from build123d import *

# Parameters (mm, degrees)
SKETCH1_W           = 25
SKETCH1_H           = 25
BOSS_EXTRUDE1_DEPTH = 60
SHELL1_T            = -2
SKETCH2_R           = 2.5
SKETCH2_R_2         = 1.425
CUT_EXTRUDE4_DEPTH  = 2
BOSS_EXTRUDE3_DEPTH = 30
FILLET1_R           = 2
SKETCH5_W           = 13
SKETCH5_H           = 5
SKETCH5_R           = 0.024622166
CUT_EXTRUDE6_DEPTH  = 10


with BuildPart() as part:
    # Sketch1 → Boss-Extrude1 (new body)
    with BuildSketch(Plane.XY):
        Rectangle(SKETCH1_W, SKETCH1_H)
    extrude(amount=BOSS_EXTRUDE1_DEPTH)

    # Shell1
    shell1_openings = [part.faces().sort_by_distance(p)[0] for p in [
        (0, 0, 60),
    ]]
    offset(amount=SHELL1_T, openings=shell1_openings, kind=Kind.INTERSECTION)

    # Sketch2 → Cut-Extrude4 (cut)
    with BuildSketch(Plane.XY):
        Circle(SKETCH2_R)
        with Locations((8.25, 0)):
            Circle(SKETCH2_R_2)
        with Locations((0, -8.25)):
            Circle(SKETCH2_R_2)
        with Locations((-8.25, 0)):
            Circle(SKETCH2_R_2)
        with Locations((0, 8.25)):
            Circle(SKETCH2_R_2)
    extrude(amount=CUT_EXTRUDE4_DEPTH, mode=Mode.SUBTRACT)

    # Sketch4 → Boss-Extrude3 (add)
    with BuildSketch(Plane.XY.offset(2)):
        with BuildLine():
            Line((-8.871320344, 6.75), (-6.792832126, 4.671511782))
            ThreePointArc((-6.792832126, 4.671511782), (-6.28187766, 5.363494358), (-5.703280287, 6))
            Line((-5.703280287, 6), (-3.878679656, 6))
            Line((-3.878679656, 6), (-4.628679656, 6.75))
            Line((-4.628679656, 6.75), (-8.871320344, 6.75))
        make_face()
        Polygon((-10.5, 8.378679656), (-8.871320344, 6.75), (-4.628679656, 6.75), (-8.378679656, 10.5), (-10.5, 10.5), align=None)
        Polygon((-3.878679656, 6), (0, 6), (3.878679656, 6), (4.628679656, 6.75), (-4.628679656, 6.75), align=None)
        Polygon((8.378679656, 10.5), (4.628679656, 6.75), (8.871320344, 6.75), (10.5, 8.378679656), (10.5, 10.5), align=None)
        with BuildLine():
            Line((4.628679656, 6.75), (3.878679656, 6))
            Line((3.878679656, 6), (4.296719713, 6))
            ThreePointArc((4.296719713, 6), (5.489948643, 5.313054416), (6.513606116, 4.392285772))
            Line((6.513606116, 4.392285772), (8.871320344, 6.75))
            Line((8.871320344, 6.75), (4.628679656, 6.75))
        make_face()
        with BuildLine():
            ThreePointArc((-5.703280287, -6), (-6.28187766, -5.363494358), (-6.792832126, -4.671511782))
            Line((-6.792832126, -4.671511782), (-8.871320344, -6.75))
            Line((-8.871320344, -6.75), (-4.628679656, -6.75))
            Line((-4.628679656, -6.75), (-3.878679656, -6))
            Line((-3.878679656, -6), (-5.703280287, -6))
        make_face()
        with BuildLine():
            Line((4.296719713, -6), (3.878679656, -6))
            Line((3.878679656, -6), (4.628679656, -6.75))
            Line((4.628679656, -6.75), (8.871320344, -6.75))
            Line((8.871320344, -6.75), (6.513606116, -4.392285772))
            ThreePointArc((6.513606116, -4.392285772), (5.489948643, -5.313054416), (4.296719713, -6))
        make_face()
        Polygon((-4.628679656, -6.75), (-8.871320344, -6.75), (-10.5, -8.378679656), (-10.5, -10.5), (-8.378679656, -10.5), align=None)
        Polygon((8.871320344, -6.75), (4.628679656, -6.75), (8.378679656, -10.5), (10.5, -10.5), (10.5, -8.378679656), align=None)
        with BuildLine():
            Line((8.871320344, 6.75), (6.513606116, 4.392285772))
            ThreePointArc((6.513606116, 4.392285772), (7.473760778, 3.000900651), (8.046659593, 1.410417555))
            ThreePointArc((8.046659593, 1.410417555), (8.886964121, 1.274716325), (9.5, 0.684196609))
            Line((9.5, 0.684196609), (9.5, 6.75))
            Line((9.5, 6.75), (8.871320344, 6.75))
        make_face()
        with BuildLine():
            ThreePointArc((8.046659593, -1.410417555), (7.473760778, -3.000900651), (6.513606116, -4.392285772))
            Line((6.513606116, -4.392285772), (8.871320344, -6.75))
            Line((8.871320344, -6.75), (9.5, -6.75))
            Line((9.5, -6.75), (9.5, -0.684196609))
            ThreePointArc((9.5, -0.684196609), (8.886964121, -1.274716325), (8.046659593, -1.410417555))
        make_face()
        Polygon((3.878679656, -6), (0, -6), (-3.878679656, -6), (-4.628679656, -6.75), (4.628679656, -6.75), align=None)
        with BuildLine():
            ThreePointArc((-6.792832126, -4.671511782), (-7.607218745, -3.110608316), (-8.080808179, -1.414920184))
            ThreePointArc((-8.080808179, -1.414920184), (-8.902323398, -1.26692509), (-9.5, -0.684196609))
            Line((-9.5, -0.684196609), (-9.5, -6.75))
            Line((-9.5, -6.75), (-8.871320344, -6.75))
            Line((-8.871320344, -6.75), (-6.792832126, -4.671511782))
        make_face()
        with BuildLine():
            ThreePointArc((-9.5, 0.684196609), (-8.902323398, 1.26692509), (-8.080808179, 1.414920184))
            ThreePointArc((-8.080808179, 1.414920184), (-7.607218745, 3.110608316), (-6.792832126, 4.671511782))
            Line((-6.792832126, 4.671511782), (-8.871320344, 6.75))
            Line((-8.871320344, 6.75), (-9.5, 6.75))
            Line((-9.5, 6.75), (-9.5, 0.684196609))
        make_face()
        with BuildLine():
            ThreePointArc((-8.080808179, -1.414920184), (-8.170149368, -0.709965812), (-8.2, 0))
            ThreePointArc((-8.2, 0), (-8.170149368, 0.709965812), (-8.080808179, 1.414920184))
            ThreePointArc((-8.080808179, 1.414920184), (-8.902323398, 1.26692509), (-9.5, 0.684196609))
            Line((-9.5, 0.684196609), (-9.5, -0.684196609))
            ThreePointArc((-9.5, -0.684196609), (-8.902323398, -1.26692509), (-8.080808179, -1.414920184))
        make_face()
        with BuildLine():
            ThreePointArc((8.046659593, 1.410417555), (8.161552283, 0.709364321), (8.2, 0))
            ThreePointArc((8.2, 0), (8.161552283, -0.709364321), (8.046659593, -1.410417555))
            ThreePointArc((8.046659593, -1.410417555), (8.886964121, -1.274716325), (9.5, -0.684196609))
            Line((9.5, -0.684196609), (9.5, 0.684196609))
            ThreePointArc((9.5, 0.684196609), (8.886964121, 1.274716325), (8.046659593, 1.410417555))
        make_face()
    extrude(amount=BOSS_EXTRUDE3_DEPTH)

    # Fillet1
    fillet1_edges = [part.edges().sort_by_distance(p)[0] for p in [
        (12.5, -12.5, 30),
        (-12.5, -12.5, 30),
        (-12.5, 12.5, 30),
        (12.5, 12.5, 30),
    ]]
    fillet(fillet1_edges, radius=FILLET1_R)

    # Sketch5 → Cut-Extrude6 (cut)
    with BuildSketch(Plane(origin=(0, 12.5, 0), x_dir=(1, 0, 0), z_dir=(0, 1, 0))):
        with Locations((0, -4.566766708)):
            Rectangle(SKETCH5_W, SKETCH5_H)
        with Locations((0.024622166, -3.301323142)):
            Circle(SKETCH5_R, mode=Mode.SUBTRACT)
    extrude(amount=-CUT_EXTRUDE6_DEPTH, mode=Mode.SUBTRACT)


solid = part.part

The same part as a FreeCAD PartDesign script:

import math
import FreeCAD as App
import Part
import Sketcher

V = App.Vector


def edges_at(feature, points):
    """Names of the edges that pass closest to the given points."""
    edges = feature.Shape.Edges
    near = lambda p: min(range(len(edges)), key=lambda i: edges[i].distToShape(Part.Vertex(*p))[0])
    return sorted({f"Edge{near(p) + 1}" for p in points})


def faces_at(feature, points):
    """Names of the faces that lie closest to the given points."""
    faces = feature.Shape.Faces
    near = lambda p: min(range(len(faces)), key=lambda i: faces[i].distToShape(Part.Vertex(*p))[0])
    return sorted({f"Face{near(p) + 1}" for p in points})


def add_polygon(sketch, points):
    """Adds a closed chain of lines whose ends are joined by coincident constraints."""
    first, n = sketch.GeometryCount, len(points)
    for a, b in zip(points, points[1:] + points[:1]):
        sketch.addGeometry(Part.LineSegment(App.Vector(*a, 0), App.Vector(*b, 0)), False)
    for i in range(n):
        sketch.addConstraint(Sketcher.Constraint("Coincident", first + i, 2, first + (i + 1) % n, 1))

doc = App.newDocument("Part")
params = doc.addObject("Spreadsheet::Sheet", "Params")
for row, (alias, value) in enumerate([
    ("sketch1_width", "25 mm"),
    ("pad1_length", "60 mm"),
    ("thickness_wall", "2 mm"),
    ("sketch2_diameter", "5 mm"),
    ("sketch2_diameter2", "2.85 mm"),
    ("pocket1_length", "2 mm"),
    ("sketch3_width", "10 mm"),
    ("sketch3_height", "13.5 mm"),
    ("pad2_length", "30 mm"),
    ("fillet_radius", "2 mm"),
    ("sketch4_width", "13 mm"),
    ("sketch4_height", "5 mm"),
    ("pocket2_length", "10 mm"),
], start=1):
    params.set(f"A{row}", alias)
    params.set(f"B{row}", "=" + value)
    params.setAlias(f"B{row}", alias)

body = doc.addObject("PartDesign::Body", "Body")
body.AllowCompound = True

# Sketch on XY plane
sketch1 = body.newObject("Sketcher::SketchObject", "Sketch")
sketch1.AttachmentSupport = (doc.getObject("XY_Plane"), [""])
sketch1.MapMode = "FlatFace"
add_polygon(sketch1, [(-12, 12), (-12, -12), (12, -12), (12, 12)])  # lines 0-3
sketch1.addConstraint([
    Sketcher.Constraint("Vertical", 0),
    Sketcher.Constraint("Horizontal", 1),
    Sketcher.Constraint("Vertical", 2),
    Sketcher.Constraint("Horizontal", 3),
    Sketcher.Constraint("Symmetric", 0, 2, 2, 2, -1, 1),
    Sketcher.Constraint("Equal", 3, 0),
    Sketcher.Constraint("DistanceX", 1, 1, 1, 2, 25.0),
])
sketch1.setExpression("Constraints[10]", "Params.sketch1_width")
pad1 = body.newObject("PartDesign::Pad", "Pad")
pad1.Profile = sketch1
pad1.setExpression("Length", "Params.pad1_length")
doc.recompute()

thickness = body.newObject("PartDesign::Thickness", "Thickness")
thickness.Base = (pad1, faces_at(pad1, [(0, 0, 60)]))
thickness.setExpression("Value", "Params.thickness_wall")
thickness.Reversed = True
thickness.Join = "Intersection"

# Sketch on XY plane
sketch2 = body.newObject("Sketcher::SketchObject", "Sketch001")
sketch2.AttachmentSupport = (doc.getObject("XY_Plane"), [""])
sketch2.MapMode = "FlatFace"
sketch2.addGeometry([
    Part.Circle(V(0, 0, 0), V(0, 0, 1), 2.5),  # 0
    Part.Circle(V(8.2, 0, 0), V(0, 0, 1), 1.4),  # 1
    Part.Circle(V(0, -8.2, 0), V(0, 0, 1), 1.4),  # 2
    Part.Circle(V(-8.2, 0, 0), V(0, 0, 1), 1.4),  # 3
    Part.Circle(V(0, 8.2, 0), V(0, 0, 1), 1.4),  # 4
], False)
sketch2.addConstraint([
    Sketcher.Constraint("Coincident", 0, 3, -1, 1),
    Sketcher.Constraint("Equal", 1, 2),
    Sketcher.Constraint("Equal", 2, 3),
    Sketcher.Constraint("Equal", 3, 4),
    Sketcher.Constraint("Symmetric", 1, 3, 3, 3, -1, 1),
    Sketcher.Constraint("Symmetric", 2, 3, 4, 3, -1, 1),
    Sketcher.Constraint("PointOnObject", 1, 3, -1),
    Sketcher.Constraint("PointOnObject", 2, 3, -2),
    Sketcher.Constraint("Diameter", 0, 5.0),
    Sketcher.Constraint("Diameter", 1, 2.85),
    Sketcher.Constraint("DistanceX", 3, 3, 1, 3, 16.5),
    Sketcher.Constraint("DistanceY", 2, 3, 4, 3, 16.5),
])
sketch2.setExpression("Constraints[8]", "Params.sketch2_diameter")
sketch2.setExpression("Constraints[9]", "Params.sketch2_diameter2")
pocket1 = body.newObject("PartDesign::Pocket", "Pocket")
pocket1.Profile = sketch2
pocket1.setExpression("Length", "Params.pocket1_length")
pocket1.Reversed = True

# Sketch on XY plane
sketch3 = body.newObject("Sketcher::SketchObject", "Sketch002")
sketch3.AttachmentSupport = (doc.getObject("XY_Plane"), [""])
sketch3.MapMode = "FlatFace"
sketch3.AttachmentOffset = App.Placement(V(0, 0, 2), App.Rotation())
add_polygon(sketch3, [(9.5, 6.8), (8.9, 6.8), (10.5, 8.4), (10.5, 10.5), (8.4, 10.5), (4.6, 6.8), (-4.6, 6.8), (-8.4, 10.5), (-10.5, 10.5), (-10.5, 8.4), (-8.9, 6.8), (-9.5, 6.8), (-9.5, -6.8), (-8.9, -6.8), (-10.5, -8.4), (-10.5, -10.5), (-8.4, -10.5), (-4.6, -6.8), (4.6, -6.8), (8.4, -10.5), (10.5, -10.5), (10.5, -8.4), (8.9, -6.8), (9.5, -6.8)])  # lines 0-23
sketch3.addGeometry(Part.ArcOfCircle(Part.Circle(V(0.3, 0, 0), V(0, 0, 1), 8.5), math.radians(134.81), math.radians(146.47)), False)  # 24
sketch3.addGeometry(Part.LineSegment(V(-5.7, 6, 0), V(4.3, 6, 0)), False)  # 25
sketch3.addGeometry(Part.ArcOfCircle(Part.Circle(V(1.6, 0, 0), V(0, 0, 1), 6.6), math.radians(42), math.radians(66)), False)  # 26
sketch3.addGeometry(Part.ArcOfCircle(Part.Circle(V(1.6, 0, 0), V(0, 0, 1), 6.6), math.radians(12), math.radians(42)), False)  # 27
sketch3.addGeometry(Part.ArcOfCircle(Part.Circle(V(1.6, 0, 0), V(0, 0, 1), 6.6), math.radians(0), math.radians(12.41)), False)  # 28
sketch3.addGeometry(Part.ArcOfCircle(Part.Circle(V(1.6, 0, 0), V(0, 0, 1), 6.6), math.radians(-12.41), math.radians(0)), False)  # 29
sketch3.addGeometry(Part.ArcOfCircle(Part.Circle(V(1.6, 0, 0), V(0, 0, 1), 6.6), math.radians(-42), math.radians(-12)), False)  # 30
sketch3.addGeometry(Part.ArcOfCircle(Part.Circle(V(1.6, 0, 0), V(0, 0, 1), 6.6), math.radians(-66), math.radians(-42)), False)  # 31
sketch3.addGeometry(Part.LineSegment(V(4.3, -6, 0), V(-5.7, -6, 0)), False)  # 32
sketch3.addGeometry(Part.ArcOfCircle(Part.Circle(V(0.3, 0, 0), V(0, 0, 1), 8.5), math.radians(-146.47), math.radians(-134.81)), False)  # 33
sketch3.addGeometry(Part.ArcOfCircle(Part.Circle(V(0.3, 0, 0), V(0, 0, 1), 8.5), math.radians(-170), math.radians(-146)), False)  # 34
sketch3.addGeometry(Part.ArcOfCircle(Part.Circle(V(0.3, 0, 0), V(0, 0, 1), 8.5), math.radians(-180), math.radians(-170.37)), False)  # 35
sketch3.addGeometry(Part.ArcOfCircle(Part.Circle(V(0.3, 0, 0), V(0, 0, 1), 8.5), math.radians(170.37), math.radians(180)), False)  # 36
sketch3.addGeometry(Part.ArcOfCircle(Part.Circle(V(0.3, 0, 0), V(0, 0, 1), 8.5), math.radians(146), math.radians(170)), False)  # 37
sketch3.addConstraint([
    Sketcher.Constraint("Coincident", 24, 1, 25, 1),
    Sketcher.Constraint("Coincident", 25, 2, 26, 2),
    Sketcher.Constraint("Tangent", 26, 1, 27, 2),
    Sketcher.Constraint("Tangent", 27, 1, 28, 2),
    Sketcher.Constraint("Tangent", 28, 1, 29, 2),
    Sketcher.Constraint("Tangent", 29, 1, 30, 2),
    Sketcher.Constraint("Tangent", 30, 1, 31, 2),
    Sketcher.Constraint("Coincident", 31, 1, 32, 1),
    Sketcher.Constraint("Coincident", 32, 2, 33, 2),
    Sketcher.Constraint("Tangent", 33, 1, 34, 2),
    Sketcher.Constraint("Tangent", 34, 1, 35, 2),
    Sketcher.Constraint("Tangent", 35, 1, 36, 2),
    Sketcher.Constraint("Tangent", 36, 1, 37, 2),
    Sketcher.Constraint("Tangent", 37, 1, 24, 2),
    Sketcher.Constraint("Horizontal", 0),
    Sketcher.Constraint("Vertical", 2),
    Sketcher.Constraint("Horizontal", 3),
    Sketcher.Constraint("Horizontal", 5),
    Sketcher.Constraint("Horizontal", 7),
    Sketcher.Constraint("Vertical", 8),
    Sketcher.Constraint("Horizontal", 10),
    Sketcher.Constraint("Vertical", 11),
    Sketcher.Constraint("Horizontal", 12),
    Sketcher.Constraint("Vertical", 14),
    Sketcher.Constraint("Horizontal", 15),
    Sketcher.Constraint("Horizontal", 17),
    Sketcher.Constraint("Horizontal", 19),
    Sketcher.Constraint("Vertical", 20),
    Sketcher.Constraint("Horizontal", 22),
    Sketcher.Constraint("Vertical", 23),
    Sketcher.Constraint("Horizontal", 25),
    Sketcher.Constraint("Horizontal", 32),
    Sketcher.Constraint("Coincident", 28, 3, 26, 3),
    Sketcher.Constraint("Coincident", 30, 3, 26, 3),
    Sketcher.Constraint("Coincident", 33, 3, 24, 3),
    Sketcher.Constraint("Coincident", 35, 3, 24, 3),
    Sketcher.Constraint("Equal", 30, 31),
    Sketcher.Constraint("Equal", 24, 33),
    Sketcher.Constraint("Symmetric", 0, 2, 12, 2, -1, 1),
    Sketcher.Constraint("Symmetric", 1, 2, 13, 2, -1, 1),
    Sketcher.Constraint("Symmetric", 3, 2, 15, 2, -1, 1),
    Sketcher.Constraint("Symmetric", 4, 2, 16, 2, -1, 1),
    Sketcher.Constraint("Symmetric", 6, 2, 18, 2, -1, 1),
    Sketcher.Constraint("Symmetric", 8, 2, 20, 2, -1, 1),
    Sketcher.Constraint("Symmetric", 9, 2, 21, 2, -1, 1),
    Sketcher.Constraint("Symmetric", 28, 1, 35, 1, -1, 1),
    Sketcher.Constraint("Symmetric", 3, 2, 6, 2, -2),
    Sketcher.Constraint("Symmetric", 1, 2, 8, 2, -2),
    Sketcher.Constraint("Symmetric", 0, 2, 9, 2, -2),
    Sketcher.Constraint("Symmetric", 27, 1, 29, 1, -1),
    Sketcher.Constraint("Symmetric", 24, 1, 32, 2, -1),
    Sketcher.Constraint("PointOnObject", 28, 1, -1),
    Sketcher.Constraint("Parallel", 1, 4),
    Sketcher.Constraint("Perpendicular", 4, 6),
    Sketcher.Constraint("Parallel", 6, 9),
    Sketcher.Constraint("Perpendicular", 16, 18),
    Sketcher.Constraint("Horizontal", 0, 2, 4, 2),
    Sketcher.Constraint("Vertical", 26, 1, 30, 1),
    Sketcher.Constraint("Vertical", 34, 1, 36, 1),
    Sketcher.Constraint("Vertical", 33, 1, 37, 1),
    Sketcher.Constraint("Equal", 0, 10),
    Sketcher.Constraint("Equal", 19, 2),
    Sketcher.Constraint("DistanceX", 25, 1, 25, 2, 10.0),
    Sketcher.Constraint("DistanceY", 11, 2, 11, 1, 13.5),
    Sketcher.Constraint("DistanceY", -1, 1, 24, 1, 6.0),
    Sketcher.Constraint("DistanceX", 8, 2, 10, 2, 1.0),
    Sketcher.Constraint("DistanceX", -1, 1, 1, 2, 10.5),
    Sketcher.Constraint("DistanceY", -1, 1, 2, 2, 10.5),
    Sketcher.Constraint("DistanceX", -1, 1, 28, 1, 8.2),
    Sketcher.Constraint("Radius", 24, 8.45782),
    Sketcher.Constraint("Distance", 1, 2.303301),
    Sketcher.Constraint("DistanceX", -1, 1, 27, 1, 8.04666),
    Sketcher.Constraint("DistanceY", 33, 1, -1, 1, 4.671512),
    Sketcher.Constraint("DistanceX", 34, 1, -1, 1, 8.080808),
    Sketcher.Constraint("DistanceY", 27, 1, 26, 1, 2.981868),
])
sketch3.setExpression("Constraints[86]", "Params.sketch3_width")
sketch3.setExpression("Constraints[87]", "Params.sketch3_height")
pad2 = body.newObject("PartDesign::Pad", "Pad001")
pad2.Profile = sketch3
pad2.setExpression("Length", "Params.pad2_length")
doc.recompute()

fillet = body.newObject("PartDesign::Fillet", "Fillet")
fillet.Base = (pad2, edges_at(pad2, [
    (12.5, -12.5, 30),
    (-12.5, -12.5, 30),
    (-12.5, 12.5, 30),
    (12.5, 12.5, 30),
]))
fillet.setExpression("Radius", "Params.fillet_radius")

# Sketch on XZ plane
sketch4 = body.newObject("Sketcher::SketchObject", "Sketch003")
sketch4.AttachmentSupport = (doc.getObject("XZ_Plane"), [""])
sketch4.MapMode = "FlatFace"
sketch4.AttachmentOffset = App.Placement(V(0, 0, -12.5), App.Rotation())
add_polygon(sketch4, [(-6.5, 2.067), (-6.5, 7.067), (6.5, 7.067), (6.5, 2.067)])  # lines 0-3
sketch4.addGeometry(Part.Circle(V(0.025, 3.301, 0), V(0, 0, 1), 0.025), False)  # 4
sketch4.addConstraint([
    Sketcher.Constraint("Vertical", 0),
    Sketcher.Constraint("Horizontal", 1),
    Sketcher.Constraint("Vertical", 2),
    Sketcher.Constraint("Horizontal", 3),
    Sketcher.Constraint("DistanceX", 1, 1, 1, 2, 13.0),
    Sketcher.Constraint("DistanceY", 0, 1, 0, 2, 5.0),
    Sketcher.Constraint("DistanceX", 0, 2, -1, 1, 6.5),
    Sketcher.Constraint("Diameter", 4, 0.049244),
    Sketcher.Constraint("DistanceX", -1, 1, 4, 3, 0.024622),
    Sketcher.Constraint("DistanceY", -1, 1, 4, 3, 3.301323),
    Sketcher.Constraint("DistanceY", -1, 1, 0, 2, 7.066767),
])
sketch4.setExpression("Constraints[8]", "Params.sketch4_width")
sketch4.setExpression("Constraints[9]", "Params.sketch4_height")
pocket2 = body.newObject("PartDesign::Pocket", "Pocket001")
pocket2.Profile = sketch4
pocket2.setExpression("Length", "Params.pocket2_length")
pocket2.Reversed = True

doc.recompute()
